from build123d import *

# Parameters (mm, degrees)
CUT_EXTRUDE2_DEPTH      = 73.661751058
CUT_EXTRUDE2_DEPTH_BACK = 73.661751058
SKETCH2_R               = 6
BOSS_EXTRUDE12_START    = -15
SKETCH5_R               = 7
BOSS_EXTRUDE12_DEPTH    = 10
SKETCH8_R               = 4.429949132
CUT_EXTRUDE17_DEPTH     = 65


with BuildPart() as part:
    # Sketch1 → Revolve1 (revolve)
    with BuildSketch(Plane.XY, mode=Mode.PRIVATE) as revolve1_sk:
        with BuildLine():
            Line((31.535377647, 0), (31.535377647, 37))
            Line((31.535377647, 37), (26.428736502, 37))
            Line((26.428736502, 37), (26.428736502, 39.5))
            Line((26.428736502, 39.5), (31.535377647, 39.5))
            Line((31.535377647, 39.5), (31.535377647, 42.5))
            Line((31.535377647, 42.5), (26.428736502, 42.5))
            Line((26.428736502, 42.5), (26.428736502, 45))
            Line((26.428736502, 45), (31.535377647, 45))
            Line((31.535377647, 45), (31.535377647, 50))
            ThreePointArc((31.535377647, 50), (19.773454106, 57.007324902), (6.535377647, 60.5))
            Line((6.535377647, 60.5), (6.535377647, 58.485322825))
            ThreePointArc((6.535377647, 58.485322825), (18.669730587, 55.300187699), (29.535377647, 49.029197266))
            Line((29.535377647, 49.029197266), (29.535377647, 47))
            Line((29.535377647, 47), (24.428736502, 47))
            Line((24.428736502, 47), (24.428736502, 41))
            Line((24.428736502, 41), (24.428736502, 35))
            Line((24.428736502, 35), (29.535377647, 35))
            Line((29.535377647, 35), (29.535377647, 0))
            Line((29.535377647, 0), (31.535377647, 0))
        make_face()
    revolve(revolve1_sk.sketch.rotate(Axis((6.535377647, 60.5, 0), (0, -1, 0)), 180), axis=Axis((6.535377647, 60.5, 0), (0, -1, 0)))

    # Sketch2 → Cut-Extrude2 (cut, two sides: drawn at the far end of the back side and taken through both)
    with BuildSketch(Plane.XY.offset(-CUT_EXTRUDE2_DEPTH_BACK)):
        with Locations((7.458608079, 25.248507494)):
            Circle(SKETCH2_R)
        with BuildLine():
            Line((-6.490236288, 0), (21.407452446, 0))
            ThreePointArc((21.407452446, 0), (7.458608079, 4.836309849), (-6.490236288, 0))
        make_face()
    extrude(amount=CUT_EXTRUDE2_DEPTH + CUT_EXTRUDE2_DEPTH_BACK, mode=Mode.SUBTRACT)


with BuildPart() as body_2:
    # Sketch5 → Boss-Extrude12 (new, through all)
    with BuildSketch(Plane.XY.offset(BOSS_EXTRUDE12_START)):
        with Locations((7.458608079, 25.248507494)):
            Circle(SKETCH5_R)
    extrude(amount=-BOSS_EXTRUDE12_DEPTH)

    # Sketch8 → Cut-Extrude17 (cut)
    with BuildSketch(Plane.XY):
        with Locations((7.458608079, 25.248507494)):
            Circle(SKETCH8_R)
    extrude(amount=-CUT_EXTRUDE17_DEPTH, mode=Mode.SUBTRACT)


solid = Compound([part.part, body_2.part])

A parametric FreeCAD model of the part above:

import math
import FreeCAD as App
import Part
import Sketcher
from FreeCAD import Vector

doc = App.newDocument("Part")
params = doc.addObject("Spreadsheet::Sheet", "Params")
for row, (alias, value) in enumerate([
    ("sketch1_width", "2 mm"),
    ("sketch1_height", "37 mm"),
    ("sketch1_height2", "3 mm"),
    ("sketch1_height3", "5 mm"),
    ("sketch1_height4", "12 mm"),
    ("revolution_angle", "360 deg"),
    ("sketch2_diameter", "12 mm"),
    ("sketch3_diameter", "14 mm"),
    ("pad1_length", "10 mm"),
    ("pocket2_length", "65 mm"),
], start=1):
    params.set(f"A{row}", alias)
    params.set(f"B{row}", "=" + value)
    params.setAlias(f"B{row}", alias)

body = doc.addObject("PartDesign::Body", "Body")

# Sketch on XY plane
sketch1 = body.newObject("Sketcher::SketchObject", "Sketch")
sketch1.AttachmentSupport = (doc.getObject("XY_Plane"), [""])
sketch1.MapMode = "FlatFace"
sketch1.addGeometry([
    Part.LineSegment(Vector(31.5, 0, 0), Vector(31.5, 37, 0)),  # 0
    Part.LineSegment(Vector(31.5, 37, 0), Vector(26.4, 37, 0)),  # 1
    Part.LineSegment(Vector(26.4, 37, 0), Vector(26.4, 39.5, 0)),  # 2
    Part.LineSegment(Vector(26.4, 39.5, 0), Vector(31.5, 39.5, 0)),  # 3
    Part.LineSegment(Vector(31.5, 39.5, 0), Vector(31.5, 42.5, 0)),  # 4
    Part.LineSegment(Vector(31.5, 42.5, 0), Vector(26.4, 42.5, 0)),  # 5
    Part.LineSegment(Vector(26.4, 42.5, 0), Vector(26.4, 45, 0)),  # 6
    Part.LineSegment(Vector(26.4, 45, 0), Vector(31.5, 45, 0)),  # 7
    Part.LineSegment(Vector(31.5, 45, 0), Vector(31.5, 50, 0)),  # 8
    Part.ArcOfCircle(Part.Circle(Vector(0.7, 11.7, 0), Vector(0, 0, 1), 49.2), math.radians(51), math.radians(83)),  # 9
    Part.LineSegment(Vector(6.5, 60.5, 0), Vector(6.5, 58.5, 0)),  # 10
    Part.ArcOfCircle(Part.Circle(Vector(0.7, 11.7, 0), Vector(0, 0, 1), 47.2), math.radians(52), math.radians(83)),  # 11
    Part.LineSegment(Vector(29.5, 49, 0), Vector(29.5, 47, 0)),  # 12
    Part.LineSegment(Vector(29.5, 47, 0), Vector(24.4, 47, 0)),  # 13
    Part.LineSegment(Vector(24.4, 47, 0), Vector(24.4, 35, 0)),  # 14
    Part.LineSegment(Vector(24.4, 35, 0), Vector(29.5, 35, 0)),  # 15
    Part.LineSegment(Vector(29.5, 35, 0), Vector(29.5, 0, 0)),  # 16
    Part.LineSegment(Vector(29.5, 0, 0), Vector(31.5, 0, 0)),  # 17
], False)
sketch1.addGeometry(Part.LineSegment(Vector(6.5, 60.5, 0), Vector(6.5, 0, 0)), True)  # axis
sketch1.addConstraint([
    Sketcher.Constraint("Coincident", 0, 2, 1, 1),
    Sketcher.Constraint("Coincident", 1, 2, 2, 1),
    Sketcher.Constraint("Coincident", 2, 2, 3, 1),
    Sketcher.Constraint("Coincident", 3, 2, 4, 1),
    Sketcher.Constraint("Coincident", 4, 2, 5, 1),
    Sketcher.Constraint("Coincident", 5, 2, 6, 1),
    Sketcher.Constraint("Coincident", 6, 2, 7, 1),
    Sketcher.Constraint("Coincident", 7, 2, 8, 1),
    Sketcher.Constraint("Coincident", 8, 2, 9, 1),
    Sketcher.Constraint("Coincident", 9, 2, 10, 1),
    Sketcher.Constraint("Coincident", 10, 2, 11, 2),
    Sketcher.Constraint("Coincident", 11, 1, 12, 1),
    Sketcher.Constraint("Coincident", 12, 2, 13, 1),
    Sketcher.Constraint("Coincident", 13, 2, 14, 1),
    Sketcher.Constraint("Coincident", 14, 2, 15, 1),
    Sketcher.Constraint("Coincident", 15, 2, 16, 1),
    Sketcher.Constraint("Coincident", 16, 2, 17, 1),
    Sketcher.Constraint("Coincident", 17, 2, 0, 1),
    Sketcher.Constraint("Vertical", 0),
    Sketcher.Constraint("Horizontal", 1),
    Sketcher.Constraint("Vertical", 2),
    Sketcher.Constraint("Horizontal", 3),
    Sketcher.Constraint("Vertical", 4),
    Sketcher.Constraint("Horizontal", 5),
    Sketcher.Constraint("Vertical", 6),
    Sketcher.Constraint("Horizontal", 7),
    Sketcher.Constraint("Vertical", 8),
    Sketcher.Constraint("Vertical", 10),
    Sketcher.Constraint("Vertical", 12),
    Sketcher.Constraint("Horizontal", 13),
    Sketcher.Constraint("Vertical", 14),
    Sketcher.Constraint("Horizontal", 15),
    Sketcher.Constraint("Vertical", 16),
    Sketcher.Constraint("Horizontal", 17),
    Sketcher.Constraint("Vertical", 18),
    Sketcher.Constraint("Coincident", 11, 3, 9, 3),
    Sketcher.Constraint("Coincident", 18, 1, 9, 2),
    Sketcher.Constraint("PointOnObject", 16, 2, -1),
    Sketcher.Constraint("PointOnObject", 18, 2, -1),
    Sketcher.Constraint("Vertical", 0, 2, 3, 2),
    Sketcher.Constraint("Vertical", 2, 2, 5, 2),
    Sketcher.Constraint("Vertical", 4, 2, 7, 2),
    Sketcher.Constraint("Vertical", 12, 2, 15, 2),
    Sketcher.Constraint("Equal", 7, 13),
    Sketcher.Constraint("Equal", 2, 6),
    Sketcher.Constraint("DistanceX", 17, 1, 17, 2, 2.0),
    Sketcher.Constraint("DistanceY", 0, 1, 0, 2, 37.0),
    Sketcher.Constraint("DistanceY", 4, 1, 4, 2, 3.0),
    Sketcher.Constraint("DistanceY", 8, 1, 8, 2, 5.0),
    Sketcher.Constraint("DistanceY", 14, 2, 14, 1, 12.0),
    Sketcher.Constraint("DistanceY", 16, 2, 16, 1, 35.0),
    Sketcher.Constraint("DistanceY", 2, 1, 2, 2, 2.5),
    Sketcher.Constraint("DistanceY", 18, 2, 18, 1, 60.5),
    Sketcher.Constraint("DistanceX", 9, 2, 8, 2, 25.0),
    Sketcher.Constraint("Radius", 9, 49.171712),
    Sketcher.Constraint("Radius", 11, 47.171712),
    Sketcher.Constraint("DistanceX", 1, 2, 1, 1, 5.106641),
    Sketcher.Constraint("DistanceX", -1, 1, 9, 3, 0.73257),
])
sketch1.setExpression("Constraints[45]", "Params.sketch1_width")
sketch1.setExpression("Constraints[46]", "Params.sketch1_height")
sketch1.setExpression("Constraints[47]", "Params.sketch1_height2")
sketch1.setExpression("Constraints[48]", "Params.sketch1_height3")
sketch1.setExpression("Constraints[49]", "Params.sketch1_height4")
revolution = body.newObject("PartDesign::Revolution", "Revolution")
revolution.Profile = sketch1
revolution.ReferenceAxis = (sketch1, ["Axis0"])
revolution.setExpression("Angle", "Params.revolution_angle")

# Sketch on XY plane
sketch2 = body.newObject("Sketcher::SketchObject", "Sketch001")
sketch2.AttachmentSupport = (doc.getObject("XY_Plane"), [""])
sketch2.MapMode = "FlatFace"
sketch2.addGeometry([
    Part.Circle(Vector(7, 25, 0), Vector(0, 0, 1), 6),
    Part.LineSegment(Vector(-6, 0, 0), Vector(21, 0, 0)),
    Part.ArcOfCircle(Part.Circle(Vector(7, -18, 0), Vector(0, 0, 1), 23), math.radians(52), math.radians(128)),
], False)
sketch2.addConstraint([
    Sketcher.Constraint("Coincident", 1, 1, 2, 2),
    Sketcher.Constraint("Coincident", 2, 1, 1, 2),
    Sketcher.Constraint("Horizontal", 1),
    Sketcher.Constraint("PointOnObject", 1, 1, -1),
    Sketcher.Constraint("Vertical", 0, 3, 2, 3),
    Sketcher.Constraint("Diameter", 0, 12.0),
    Sketcher.Constraint("Radius", 2, 22.533725),
    Sketcher.Constraint("DistanceX", 1, 1, 1, 2, 27.897689),
    Sketcher.Constraint("DistanceX", -1, 1, 0, 3, 7.458608),
    Sketcher.Constraint("DistanceY", -1, 1, 0, 3, 25.248507),
])
sketch2.setExpression("Constraints[5]", "Params.sketch2_diameter")
pocket1 = body.newObject("PartDesign::Pocket", "Pocket")
pocket1.Profile = sketch2
pocket1.Type = "ThroughAll"
pocket1.Midplane = True
body2 = doc.addObject("PartDesign::Body", "Body001")

# Sketch on XY plane
sketch3 = body2.newObject("Sketcher::SketchObject", "Sketch002")
sketch3.AttachmentSupport = (doc.getObject("XY_Plane001"), [""])
sketch3.MapMode = "FlatFace"
sketch3.AttachmentOffset = App.Placement(Vector(0, 0, -15), App.Rotation())
sketch3.addGeometry(Part.Circle(Vector(7, 25, 0), Vector(0, 0, 1), 7), False)
sketch3.addConstraint([
    Sketcher.Constraint("Diameter", 0, 14.0),
    Sketcher.Constraint("DistanceX", -1, 1, 0, 3, 7.458608),
    Sketcher.Constraint("DistanceY", -1, 1, 0, 3, 25.248507),
])
sketch3.setExpression("Constraints[0]", "Params.sketch3_diameter")
pad1 = body2.newObject("PartDesign::Pad", "Pad")
pad1.Profile = sketch3
pad1.setExpression("Length", "Params.pad1_length")
pad1.Reversed = True

# Sketch on XY plane
sketch4 = body2.newObject("Sketcher::SketchObject", "Sketch003")
sketch4.AttachmentSupport = (doc.getObject("XY_Plane001"), [""])
sketch4.MapMode = "FlatFace"
sketch4.addGeometry(Part.Circle(Vector(7.5, 25.2, 0), Vector(0, 0, 1), 4.4), False)
sketch4.addConstraint([
    Sketcher.Constraint("Diameter", 0, 8.859898),
    Sketcher.Constraint("DistanceX", -1, 1, 0, 3, 7.458608),
    Sketcher.Constraint("DistanceY", -1, 1, 0, 3, 25.248507),
])
pocket2 = body2.newObject("PartDesign::Pocket", "Pocket001")
pocket2.Profile = sketch4
pocket2.setExpression("Length", "Params.pocket2_length")

doc.recompute()
